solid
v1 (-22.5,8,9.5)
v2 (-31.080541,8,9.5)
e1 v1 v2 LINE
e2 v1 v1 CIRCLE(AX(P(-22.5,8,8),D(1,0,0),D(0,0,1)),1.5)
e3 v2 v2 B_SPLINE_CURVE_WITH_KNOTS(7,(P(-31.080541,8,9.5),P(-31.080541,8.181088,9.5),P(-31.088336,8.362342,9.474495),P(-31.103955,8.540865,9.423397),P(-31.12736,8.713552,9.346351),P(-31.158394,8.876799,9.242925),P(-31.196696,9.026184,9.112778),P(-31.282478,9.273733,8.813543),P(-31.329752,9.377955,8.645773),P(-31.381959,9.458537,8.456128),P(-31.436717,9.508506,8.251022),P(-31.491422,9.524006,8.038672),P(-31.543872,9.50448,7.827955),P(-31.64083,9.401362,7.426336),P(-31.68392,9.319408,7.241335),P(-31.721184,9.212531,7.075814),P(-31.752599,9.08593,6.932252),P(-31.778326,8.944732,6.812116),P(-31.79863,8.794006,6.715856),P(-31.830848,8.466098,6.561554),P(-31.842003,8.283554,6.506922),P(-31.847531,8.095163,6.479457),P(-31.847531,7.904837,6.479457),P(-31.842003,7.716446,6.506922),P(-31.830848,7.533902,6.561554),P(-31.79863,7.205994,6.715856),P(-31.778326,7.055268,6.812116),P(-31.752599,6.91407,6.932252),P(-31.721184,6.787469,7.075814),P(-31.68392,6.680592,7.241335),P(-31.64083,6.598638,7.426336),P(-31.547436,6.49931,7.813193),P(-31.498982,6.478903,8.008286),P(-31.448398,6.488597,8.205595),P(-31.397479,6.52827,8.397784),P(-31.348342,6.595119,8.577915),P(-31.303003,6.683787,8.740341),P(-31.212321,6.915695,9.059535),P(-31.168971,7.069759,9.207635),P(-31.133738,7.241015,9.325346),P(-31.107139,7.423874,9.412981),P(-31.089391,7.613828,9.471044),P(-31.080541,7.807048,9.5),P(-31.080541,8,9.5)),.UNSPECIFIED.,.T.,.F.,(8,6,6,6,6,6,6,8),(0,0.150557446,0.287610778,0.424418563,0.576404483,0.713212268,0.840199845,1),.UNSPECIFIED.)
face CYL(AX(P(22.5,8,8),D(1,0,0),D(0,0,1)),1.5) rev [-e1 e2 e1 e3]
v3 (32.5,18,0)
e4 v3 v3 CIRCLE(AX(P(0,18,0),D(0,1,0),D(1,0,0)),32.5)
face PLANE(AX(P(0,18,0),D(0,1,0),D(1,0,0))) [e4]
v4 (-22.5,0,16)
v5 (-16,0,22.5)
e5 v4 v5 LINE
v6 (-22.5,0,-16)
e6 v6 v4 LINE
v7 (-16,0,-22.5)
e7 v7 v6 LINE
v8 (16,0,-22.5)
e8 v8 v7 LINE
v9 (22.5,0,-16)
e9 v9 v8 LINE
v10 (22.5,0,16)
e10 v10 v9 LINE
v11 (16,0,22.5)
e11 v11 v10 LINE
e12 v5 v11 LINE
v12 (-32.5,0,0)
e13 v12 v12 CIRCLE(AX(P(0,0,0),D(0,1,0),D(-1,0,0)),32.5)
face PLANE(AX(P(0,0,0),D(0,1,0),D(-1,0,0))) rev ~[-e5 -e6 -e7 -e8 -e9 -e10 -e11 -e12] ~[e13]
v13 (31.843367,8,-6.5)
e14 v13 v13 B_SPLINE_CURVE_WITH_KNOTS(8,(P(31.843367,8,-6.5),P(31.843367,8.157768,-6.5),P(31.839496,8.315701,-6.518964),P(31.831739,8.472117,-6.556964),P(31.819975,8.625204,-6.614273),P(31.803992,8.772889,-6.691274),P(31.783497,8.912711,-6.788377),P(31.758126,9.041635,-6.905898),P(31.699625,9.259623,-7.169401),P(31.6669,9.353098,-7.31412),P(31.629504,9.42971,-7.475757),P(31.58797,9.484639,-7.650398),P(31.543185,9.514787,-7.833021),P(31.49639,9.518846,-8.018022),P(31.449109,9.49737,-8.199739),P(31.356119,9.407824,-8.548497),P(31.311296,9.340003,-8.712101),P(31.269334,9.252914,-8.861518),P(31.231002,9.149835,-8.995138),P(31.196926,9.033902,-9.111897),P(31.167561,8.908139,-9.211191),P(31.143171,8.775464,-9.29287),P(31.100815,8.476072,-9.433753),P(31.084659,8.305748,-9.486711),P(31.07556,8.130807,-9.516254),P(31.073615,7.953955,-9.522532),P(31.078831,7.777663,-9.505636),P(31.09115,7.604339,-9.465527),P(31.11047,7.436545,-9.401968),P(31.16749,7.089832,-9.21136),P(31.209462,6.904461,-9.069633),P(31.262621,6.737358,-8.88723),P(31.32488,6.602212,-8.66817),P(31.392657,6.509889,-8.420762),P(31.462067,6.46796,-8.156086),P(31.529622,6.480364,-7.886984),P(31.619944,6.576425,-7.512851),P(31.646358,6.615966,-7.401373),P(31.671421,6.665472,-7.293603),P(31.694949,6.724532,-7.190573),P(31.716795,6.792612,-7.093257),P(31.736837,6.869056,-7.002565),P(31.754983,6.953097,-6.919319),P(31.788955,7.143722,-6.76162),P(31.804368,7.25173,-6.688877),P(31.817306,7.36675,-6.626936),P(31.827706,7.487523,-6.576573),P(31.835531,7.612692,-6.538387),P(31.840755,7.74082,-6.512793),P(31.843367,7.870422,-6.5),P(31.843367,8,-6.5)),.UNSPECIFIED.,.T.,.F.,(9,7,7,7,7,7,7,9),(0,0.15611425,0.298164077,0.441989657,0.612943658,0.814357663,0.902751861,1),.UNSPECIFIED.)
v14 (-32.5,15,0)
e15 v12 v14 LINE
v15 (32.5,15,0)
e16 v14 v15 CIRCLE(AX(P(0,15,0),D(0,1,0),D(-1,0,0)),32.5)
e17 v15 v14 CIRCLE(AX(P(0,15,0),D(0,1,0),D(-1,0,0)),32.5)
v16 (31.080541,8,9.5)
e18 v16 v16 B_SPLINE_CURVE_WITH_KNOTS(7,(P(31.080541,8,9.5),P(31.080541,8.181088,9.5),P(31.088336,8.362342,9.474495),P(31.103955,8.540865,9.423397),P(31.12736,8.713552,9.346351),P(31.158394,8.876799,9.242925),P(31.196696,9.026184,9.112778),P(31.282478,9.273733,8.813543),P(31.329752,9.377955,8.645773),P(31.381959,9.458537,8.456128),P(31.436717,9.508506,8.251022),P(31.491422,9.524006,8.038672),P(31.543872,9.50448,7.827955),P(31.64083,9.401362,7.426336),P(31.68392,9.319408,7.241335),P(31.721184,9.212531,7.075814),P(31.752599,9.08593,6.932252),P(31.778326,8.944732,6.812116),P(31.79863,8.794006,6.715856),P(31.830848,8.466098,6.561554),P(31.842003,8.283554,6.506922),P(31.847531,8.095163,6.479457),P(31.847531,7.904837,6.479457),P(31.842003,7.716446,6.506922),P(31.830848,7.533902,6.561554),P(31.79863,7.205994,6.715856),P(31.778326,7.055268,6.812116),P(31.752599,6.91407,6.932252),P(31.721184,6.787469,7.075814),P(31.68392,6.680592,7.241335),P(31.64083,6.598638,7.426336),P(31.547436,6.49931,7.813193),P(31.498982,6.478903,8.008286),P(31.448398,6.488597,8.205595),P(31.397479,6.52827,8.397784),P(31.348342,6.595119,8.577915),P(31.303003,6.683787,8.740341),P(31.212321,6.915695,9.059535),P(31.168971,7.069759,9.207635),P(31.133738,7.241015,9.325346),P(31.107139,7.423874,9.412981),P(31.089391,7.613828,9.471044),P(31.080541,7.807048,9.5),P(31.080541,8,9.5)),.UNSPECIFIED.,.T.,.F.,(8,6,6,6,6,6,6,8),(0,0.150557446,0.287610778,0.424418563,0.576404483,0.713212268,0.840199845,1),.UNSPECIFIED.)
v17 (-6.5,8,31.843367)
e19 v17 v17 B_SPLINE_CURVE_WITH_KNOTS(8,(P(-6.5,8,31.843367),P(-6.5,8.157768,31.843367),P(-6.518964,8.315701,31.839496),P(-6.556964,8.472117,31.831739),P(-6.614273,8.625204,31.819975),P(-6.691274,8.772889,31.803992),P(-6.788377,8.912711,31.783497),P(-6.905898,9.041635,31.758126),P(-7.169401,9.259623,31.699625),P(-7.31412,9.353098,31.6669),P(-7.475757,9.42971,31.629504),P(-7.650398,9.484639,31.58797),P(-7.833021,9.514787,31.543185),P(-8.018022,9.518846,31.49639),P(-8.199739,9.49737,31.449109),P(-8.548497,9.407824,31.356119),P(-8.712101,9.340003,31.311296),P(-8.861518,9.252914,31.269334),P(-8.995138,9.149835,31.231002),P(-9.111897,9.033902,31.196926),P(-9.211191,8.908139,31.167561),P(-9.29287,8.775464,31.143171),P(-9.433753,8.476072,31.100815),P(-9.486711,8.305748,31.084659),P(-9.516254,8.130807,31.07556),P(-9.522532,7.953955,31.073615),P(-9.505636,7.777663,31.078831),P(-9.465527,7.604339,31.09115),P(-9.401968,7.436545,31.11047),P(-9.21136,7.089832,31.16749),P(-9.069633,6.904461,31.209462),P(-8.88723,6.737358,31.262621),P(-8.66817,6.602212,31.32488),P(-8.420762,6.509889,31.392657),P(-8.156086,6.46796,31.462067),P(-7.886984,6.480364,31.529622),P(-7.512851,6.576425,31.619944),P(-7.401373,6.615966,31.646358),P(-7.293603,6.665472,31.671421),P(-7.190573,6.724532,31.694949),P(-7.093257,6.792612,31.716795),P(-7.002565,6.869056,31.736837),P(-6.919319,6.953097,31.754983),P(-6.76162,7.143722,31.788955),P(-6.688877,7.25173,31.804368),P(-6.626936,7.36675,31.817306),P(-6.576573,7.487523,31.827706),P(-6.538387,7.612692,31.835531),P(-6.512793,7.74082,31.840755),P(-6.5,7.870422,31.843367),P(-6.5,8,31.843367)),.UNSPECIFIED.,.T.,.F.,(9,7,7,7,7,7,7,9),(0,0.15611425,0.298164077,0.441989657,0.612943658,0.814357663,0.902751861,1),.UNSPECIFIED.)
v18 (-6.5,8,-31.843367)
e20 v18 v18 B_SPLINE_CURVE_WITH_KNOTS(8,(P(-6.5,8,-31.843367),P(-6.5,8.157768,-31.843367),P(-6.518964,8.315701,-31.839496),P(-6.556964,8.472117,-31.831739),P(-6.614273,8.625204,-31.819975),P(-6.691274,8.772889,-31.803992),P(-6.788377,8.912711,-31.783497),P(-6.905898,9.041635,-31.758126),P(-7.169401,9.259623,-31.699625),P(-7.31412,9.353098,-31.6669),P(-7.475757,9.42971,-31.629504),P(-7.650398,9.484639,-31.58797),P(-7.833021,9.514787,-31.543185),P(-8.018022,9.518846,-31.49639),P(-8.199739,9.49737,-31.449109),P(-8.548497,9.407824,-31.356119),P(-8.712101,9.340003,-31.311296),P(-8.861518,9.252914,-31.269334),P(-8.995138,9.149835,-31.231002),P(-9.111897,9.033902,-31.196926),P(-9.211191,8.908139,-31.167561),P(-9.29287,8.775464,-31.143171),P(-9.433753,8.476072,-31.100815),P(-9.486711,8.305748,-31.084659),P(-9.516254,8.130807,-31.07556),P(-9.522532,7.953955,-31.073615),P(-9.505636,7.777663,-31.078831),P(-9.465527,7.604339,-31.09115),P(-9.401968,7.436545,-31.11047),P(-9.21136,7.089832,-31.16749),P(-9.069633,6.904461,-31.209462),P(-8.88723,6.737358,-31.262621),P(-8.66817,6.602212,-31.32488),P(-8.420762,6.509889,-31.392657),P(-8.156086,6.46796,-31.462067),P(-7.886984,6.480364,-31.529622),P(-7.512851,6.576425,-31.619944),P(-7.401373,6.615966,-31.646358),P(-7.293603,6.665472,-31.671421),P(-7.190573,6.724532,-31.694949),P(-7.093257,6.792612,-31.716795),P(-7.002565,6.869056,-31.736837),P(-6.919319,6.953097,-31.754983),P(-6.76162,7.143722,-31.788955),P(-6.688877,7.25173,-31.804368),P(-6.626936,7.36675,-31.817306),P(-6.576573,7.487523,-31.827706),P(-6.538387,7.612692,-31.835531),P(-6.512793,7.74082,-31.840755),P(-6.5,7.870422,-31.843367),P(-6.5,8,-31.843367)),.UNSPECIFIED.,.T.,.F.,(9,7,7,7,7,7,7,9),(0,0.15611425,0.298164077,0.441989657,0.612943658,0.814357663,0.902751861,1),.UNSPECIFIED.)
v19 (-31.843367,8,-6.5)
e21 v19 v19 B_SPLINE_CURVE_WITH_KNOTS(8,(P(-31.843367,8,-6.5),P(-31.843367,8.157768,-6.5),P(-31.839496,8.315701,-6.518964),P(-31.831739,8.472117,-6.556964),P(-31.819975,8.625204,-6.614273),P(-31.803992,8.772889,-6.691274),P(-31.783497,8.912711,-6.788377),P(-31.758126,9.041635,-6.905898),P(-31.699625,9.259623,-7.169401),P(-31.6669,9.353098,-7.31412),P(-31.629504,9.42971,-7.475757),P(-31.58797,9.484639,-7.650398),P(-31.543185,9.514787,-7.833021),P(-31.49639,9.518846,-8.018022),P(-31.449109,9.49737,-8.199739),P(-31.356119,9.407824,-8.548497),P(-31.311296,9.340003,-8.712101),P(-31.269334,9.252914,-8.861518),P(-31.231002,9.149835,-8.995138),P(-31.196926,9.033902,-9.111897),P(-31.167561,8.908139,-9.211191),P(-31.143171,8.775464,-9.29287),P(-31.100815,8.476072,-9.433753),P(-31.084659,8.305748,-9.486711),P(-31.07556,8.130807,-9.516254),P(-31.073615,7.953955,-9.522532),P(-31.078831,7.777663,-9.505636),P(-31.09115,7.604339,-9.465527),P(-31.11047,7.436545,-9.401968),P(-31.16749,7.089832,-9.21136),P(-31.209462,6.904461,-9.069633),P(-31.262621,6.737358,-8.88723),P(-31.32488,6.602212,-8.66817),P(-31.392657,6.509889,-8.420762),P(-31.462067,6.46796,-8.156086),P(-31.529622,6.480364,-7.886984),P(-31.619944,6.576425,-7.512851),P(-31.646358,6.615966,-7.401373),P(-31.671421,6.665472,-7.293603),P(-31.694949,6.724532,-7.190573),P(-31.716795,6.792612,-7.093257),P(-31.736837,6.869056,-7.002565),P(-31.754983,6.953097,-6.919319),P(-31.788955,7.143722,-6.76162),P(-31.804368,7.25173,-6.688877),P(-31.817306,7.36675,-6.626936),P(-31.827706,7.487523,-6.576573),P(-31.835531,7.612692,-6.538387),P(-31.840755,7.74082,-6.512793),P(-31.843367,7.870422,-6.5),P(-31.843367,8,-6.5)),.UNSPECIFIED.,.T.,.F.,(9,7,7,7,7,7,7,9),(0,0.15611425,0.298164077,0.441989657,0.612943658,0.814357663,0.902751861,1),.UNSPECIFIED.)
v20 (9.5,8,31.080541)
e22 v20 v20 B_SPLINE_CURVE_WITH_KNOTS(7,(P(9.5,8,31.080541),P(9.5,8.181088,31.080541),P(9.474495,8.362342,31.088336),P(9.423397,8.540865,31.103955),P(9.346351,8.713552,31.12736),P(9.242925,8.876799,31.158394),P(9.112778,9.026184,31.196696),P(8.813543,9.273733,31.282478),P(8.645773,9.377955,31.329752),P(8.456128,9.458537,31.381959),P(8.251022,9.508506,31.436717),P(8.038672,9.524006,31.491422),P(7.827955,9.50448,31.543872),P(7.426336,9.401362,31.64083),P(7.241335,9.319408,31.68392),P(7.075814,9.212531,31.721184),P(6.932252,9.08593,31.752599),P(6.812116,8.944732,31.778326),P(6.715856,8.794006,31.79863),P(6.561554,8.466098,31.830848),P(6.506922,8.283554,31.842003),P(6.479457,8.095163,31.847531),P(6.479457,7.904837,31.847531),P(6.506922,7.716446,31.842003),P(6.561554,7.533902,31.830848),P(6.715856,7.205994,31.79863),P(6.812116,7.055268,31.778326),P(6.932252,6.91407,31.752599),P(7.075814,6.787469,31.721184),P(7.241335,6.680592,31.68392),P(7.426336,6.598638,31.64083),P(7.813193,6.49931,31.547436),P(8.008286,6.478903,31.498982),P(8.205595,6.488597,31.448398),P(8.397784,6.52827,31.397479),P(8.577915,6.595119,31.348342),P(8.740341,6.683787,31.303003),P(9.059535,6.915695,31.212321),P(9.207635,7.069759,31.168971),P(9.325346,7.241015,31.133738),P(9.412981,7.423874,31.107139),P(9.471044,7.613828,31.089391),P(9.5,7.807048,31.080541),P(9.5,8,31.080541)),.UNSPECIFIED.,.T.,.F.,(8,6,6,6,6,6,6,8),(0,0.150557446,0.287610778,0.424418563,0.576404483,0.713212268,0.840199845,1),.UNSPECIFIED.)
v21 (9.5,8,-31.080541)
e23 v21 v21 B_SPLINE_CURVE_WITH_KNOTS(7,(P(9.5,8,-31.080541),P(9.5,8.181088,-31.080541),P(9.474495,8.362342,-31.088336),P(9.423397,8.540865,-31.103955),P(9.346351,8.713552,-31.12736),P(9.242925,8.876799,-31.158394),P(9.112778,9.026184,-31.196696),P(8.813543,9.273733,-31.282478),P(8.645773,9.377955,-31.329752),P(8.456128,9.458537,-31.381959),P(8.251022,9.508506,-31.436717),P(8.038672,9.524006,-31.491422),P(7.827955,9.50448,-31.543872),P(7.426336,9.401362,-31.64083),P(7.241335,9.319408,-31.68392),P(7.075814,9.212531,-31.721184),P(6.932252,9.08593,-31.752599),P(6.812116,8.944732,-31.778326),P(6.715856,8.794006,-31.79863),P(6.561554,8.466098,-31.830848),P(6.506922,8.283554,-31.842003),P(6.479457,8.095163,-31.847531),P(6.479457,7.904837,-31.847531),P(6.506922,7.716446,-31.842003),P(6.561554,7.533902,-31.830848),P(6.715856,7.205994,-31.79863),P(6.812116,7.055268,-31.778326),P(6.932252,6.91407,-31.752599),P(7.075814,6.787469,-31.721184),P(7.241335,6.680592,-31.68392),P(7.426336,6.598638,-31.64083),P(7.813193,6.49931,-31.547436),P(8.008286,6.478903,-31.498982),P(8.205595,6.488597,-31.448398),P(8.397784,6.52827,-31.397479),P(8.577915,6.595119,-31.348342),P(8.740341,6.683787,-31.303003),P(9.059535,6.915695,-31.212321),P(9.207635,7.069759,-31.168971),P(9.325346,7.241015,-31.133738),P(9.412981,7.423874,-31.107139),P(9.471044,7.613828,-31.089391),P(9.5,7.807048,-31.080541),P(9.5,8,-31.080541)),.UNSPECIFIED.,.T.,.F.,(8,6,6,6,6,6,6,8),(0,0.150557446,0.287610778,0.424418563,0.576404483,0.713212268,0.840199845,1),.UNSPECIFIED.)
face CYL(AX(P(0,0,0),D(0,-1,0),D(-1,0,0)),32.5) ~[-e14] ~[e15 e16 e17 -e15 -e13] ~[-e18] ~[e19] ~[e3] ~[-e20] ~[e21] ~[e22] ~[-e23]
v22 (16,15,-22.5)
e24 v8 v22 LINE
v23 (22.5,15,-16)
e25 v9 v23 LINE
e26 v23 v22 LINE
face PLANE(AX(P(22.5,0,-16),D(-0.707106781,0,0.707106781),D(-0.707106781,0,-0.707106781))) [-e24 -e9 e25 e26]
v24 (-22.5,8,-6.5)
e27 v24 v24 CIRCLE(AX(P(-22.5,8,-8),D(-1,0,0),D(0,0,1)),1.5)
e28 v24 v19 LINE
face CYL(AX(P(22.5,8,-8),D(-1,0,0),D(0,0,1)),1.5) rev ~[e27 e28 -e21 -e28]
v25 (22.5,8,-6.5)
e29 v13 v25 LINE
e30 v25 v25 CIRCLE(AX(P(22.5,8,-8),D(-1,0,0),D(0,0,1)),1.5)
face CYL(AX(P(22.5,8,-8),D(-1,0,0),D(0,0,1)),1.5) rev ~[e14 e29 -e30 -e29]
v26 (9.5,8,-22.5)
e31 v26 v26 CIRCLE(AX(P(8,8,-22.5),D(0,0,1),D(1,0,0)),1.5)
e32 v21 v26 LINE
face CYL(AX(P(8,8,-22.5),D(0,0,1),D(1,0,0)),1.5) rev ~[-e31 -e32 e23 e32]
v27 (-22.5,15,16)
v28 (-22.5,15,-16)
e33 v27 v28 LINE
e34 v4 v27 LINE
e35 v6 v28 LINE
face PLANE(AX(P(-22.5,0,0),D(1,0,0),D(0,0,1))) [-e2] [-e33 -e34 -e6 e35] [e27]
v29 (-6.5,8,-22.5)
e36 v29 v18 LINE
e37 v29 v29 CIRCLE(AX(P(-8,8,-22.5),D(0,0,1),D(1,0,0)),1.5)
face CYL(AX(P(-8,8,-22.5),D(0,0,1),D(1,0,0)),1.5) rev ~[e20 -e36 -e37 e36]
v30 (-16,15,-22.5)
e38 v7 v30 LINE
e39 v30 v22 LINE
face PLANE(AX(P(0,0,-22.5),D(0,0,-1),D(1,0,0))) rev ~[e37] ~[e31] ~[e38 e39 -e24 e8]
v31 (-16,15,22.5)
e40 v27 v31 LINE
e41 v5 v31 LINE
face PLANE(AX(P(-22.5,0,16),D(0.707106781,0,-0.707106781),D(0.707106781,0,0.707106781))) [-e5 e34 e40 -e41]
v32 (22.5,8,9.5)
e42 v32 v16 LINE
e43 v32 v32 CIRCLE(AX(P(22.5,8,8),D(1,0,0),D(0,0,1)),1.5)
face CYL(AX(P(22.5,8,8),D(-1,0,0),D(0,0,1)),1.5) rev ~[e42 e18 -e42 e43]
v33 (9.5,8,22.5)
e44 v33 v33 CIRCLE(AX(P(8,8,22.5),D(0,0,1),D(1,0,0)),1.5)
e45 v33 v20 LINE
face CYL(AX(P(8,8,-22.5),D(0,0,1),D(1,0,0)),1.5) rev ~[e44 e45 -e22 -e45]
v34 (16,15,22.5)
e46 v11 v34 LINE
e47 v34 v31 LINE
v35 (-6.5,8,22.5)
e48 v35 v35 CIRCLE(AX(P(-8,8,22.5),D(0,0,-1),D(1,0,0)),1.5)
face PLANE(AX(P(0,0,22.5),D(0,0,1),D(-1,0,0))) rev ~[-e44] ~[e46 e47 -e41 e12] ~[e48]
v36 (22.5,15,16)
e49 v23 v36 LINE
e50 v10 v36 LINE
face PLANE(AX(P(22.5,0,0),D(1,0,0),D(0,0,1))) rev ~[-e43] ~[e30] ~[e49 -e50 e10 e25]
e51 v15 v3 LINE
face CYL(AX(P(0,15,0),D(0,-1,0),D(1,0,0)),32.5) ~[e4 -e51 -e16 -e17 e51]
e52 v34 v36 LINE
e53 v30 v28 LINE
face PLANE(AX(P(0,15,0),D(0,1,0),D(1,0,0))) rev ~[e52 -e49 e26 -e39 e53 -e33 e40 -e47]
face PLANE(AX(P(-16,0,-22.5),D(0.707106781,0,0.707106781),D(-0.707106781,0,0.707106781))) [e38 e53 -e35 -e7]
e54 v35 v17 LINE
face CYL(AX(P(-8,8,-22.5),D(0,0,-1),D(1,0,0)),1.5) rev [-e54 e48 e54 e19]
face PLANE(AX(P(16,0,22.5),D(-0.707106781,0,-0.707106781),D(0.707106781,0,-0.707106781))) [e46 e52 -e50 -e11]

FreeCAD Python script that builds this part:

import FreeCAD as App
import Part
import Sketcher

V = App.Vector

doc = App.newDocument("Part")
params = doc.addObject("Spreadsheet::Sheet", "Params")
for row, (alias, value) in enumerate([
    ("sketch1_diameter", "65 mm"),
    ("sketch1_width", "32 mm"),
    ("pad1_length", "15 mm"),
    ("sketch2_diameter", "3 mm"),
    ("pocket1_length", "10200 mm"),
    ("sketch3_diameter", "3 mm"),
    ("pocket2_length", "10200 mm"),
    ("sketch4_diameter", "65 mm"),
    ("pad2_length", "3 mm"),
], start=1):
    params.set(f"A{row}", alias)
    params.set(f"B{row}", "=" + value)
    params.setAlias(f"B{row}", alias)

body = doc.addObject("PartDesign::Body", "Body")

sketch1 = body.newObject("Sketcher::SketchObject", "Sketch")
sketch1.AttachmentSupport = (doc.getObject("XZ_Plane"), [""])
sketch1.MapMode = "FlatFace"
sketch1.addGeometry(Part.Circle(V(0, 0, 0), V(0, 0, 1), 32), False)
sketch1.addGeometry(Part.LineSegment(V(-22, 16, 0), V(-22, -16, 0)), False)
sketch1.addGeometry(Part.LineSegment(V(-22, -16, 0), V(-16, -22, 0)), False)
sketch1.addGeometry(Part.LineSegment(V(-16, -22, 0), V(16, -22, 0)), False)
sketch1.addGeometry(Part.LineSegment(V(16, -22, 0), V(22, -16, 0)), False)
sketch1.addGeometry(Part.LineSegment(V(22, -16, 0), V(22, 16, 0)), False)
sketch1.addGeometry(Part.LineSegment(V(22, 16, 0), V(16, 22, 0)), False)
sketch1.addGeometry(Part.LineSegment(V(16, 22, 0), V(-16, 22, 0)), False)
sketch1.addGeometry(Part.LineSegment(V(-16, 22, 0), V(-22, 16, 0)), False)
sketch1.addConstraint(Sketcher.Constraint("Coincident", 1, 2, 2, 1))
sketch1.addConstraint(Sketcher.Constraint("Coincident", 2, 2, 3, 1))
sketch1.addConstraint(Sketcher.Constraint("Coincident", 3, 2, 4, 1))
sketch1.addConstraint(Sketcher.Constraint("Coincident", 4, 2, 5, 1))
sketch1.addConstraint(Sketcher.Constraint("Coincident", 5, 2, 6, 1))
sketch1.addConstraint(Sketcher.Constraint("Coincident", 6, 2, 7, 1))
sketch1.addConstraint(Sketcher.Constraint("Coincident", 7, 2, 8, 1))
sketch1.addConstraint(Sketcher.Constraint("Coincident", 8, 2, 1, 1))
sketch1.addConstraint(Sketcher.Constraint("Vertical", 1))
sketch1.addConstraint(Sketcher.Constraint("Horizontal", 3))
sketch1.addConstraint(Sketcher.Constraint("Vertical", 5))
sketch1.addConstraint(Sketcher.Constraint("Horizontal", 7))
sketch1.addConstraint(Sketcher.Constraint("Coincident", 0, 3, -1, 1))
sketch1.addConstraint(Sketcher.Constraint("Symmetric", 1, 2, 5, 2, -1, 1))
sketch1.addConstraint(Sketcher.Constraint("Symmetric", 2, 2, 6, 2, -1, 1))
sketch1.addConstraint(Sketcher.Constraint("Perpendicular", 2, 4))
sketch1.addConstraint(Sketcher.Constraint("Perpendicular", 6, 8))
sketch1.addConstraint(Sketcher.Constraint("Horizontal", 1, 2, 4, 2))
sketch1.addConstraint(Sketcher.Constraint("Horizontal", 5, 2, 8, 2))
sketch1.addConstraint(Sketcher.Constraint("Vertical", 3, 2, 6, 2))
sketch1.addConstraint(Sketcher.Constraint("Equal", 7, 1))
sketch1.addConstraint(Sketcher.Constraint("Diameter", 0, 65.0))
sketch1.addConstraint(Sketcher.Constraint("DistanceX", 3, 1, 3, 2, 32.0))
sketch1.addConstraint(Sketcher.Constraint("DistanceX", 1, 2, -1, 1, 22.5))
sketch1.setExpression("Constraints[21]", "Params.sketch1_diameter")
sketch1.setExpression("Constraints[22]", "Params.sketch1_width")
pad1 = body.newObject("PartDesign::Pad", "Pad")
pad1.Profile = sketch1
pad1.setExpression("Length", "Params.pad1_length")
pad1.Reversed = True

sketch2 = body.newObject("Sketcher::SketchObject", "Sketch001")
sketch2.AttachmentSupport = (doc.getObject("XY_Plane"), [""])
sketch2.MapMode = "FlatFace"
sketch2.AttachmentOffset = App.Placement(V(0, 0, -22.5), App.Rotation())
sketch2.addGeometry(Part.Circle(V(8, 8, 0), V(0, 0, 1), 1.5), False)
sketch2.addGeometry(Part.Circle(V(-8, 8, 0), V(0, 0, 1), 1.5), False)
sketch2.addConstraint(Sketcher.Constraint("Equal", 0, 1))
sketch2.addConstraint(Sketcher.Constraint("Symmetric", 0, 3, 1, 3, -2))
sketch2.addConstraint(Sketcher.Constraint("Diameter", 0, 3.0))
sketch2.addConstraint(Sketcher.Constraint("DistanceX", -1, 1, 0, 3, 8.0))
sketch2.addConstraint(Sketcher.Constraint("DistanceY", -1, 1, 0, 3, 8.0))
sketch2.setExpression("Constraints[2]", "Params.sketch2_diameter")
pocket1 = body.newObject("PartDesign::Pocket", "Pocket")
pocket1.Profile = sketch2
pocket1.setExpression("Length", "Params.pocket1_length")
pocket1.Midplane = True

sketch3 = body.newObject("Sketcher::SketchObject", "Sketch002")
sketch3.AttachmentSupport = (doc.getObject("YZ_Plane"), [""])
sketch3.MapMode = "FlatFace"
sketch3.AttachmentOffset = App.Placement(V(0, 0, 22.5), App.Rotation())
sketch3.addGeometry(Part.Circle(V(8, 8, 0), V(0, 0, 1), 1.5), False)
sketch3.addGeometry(Part.Circle(V(8, -8, 0), V(0, 0, 1), 1.5), False)
sketch3.addConstraint(Sketcher.Constraint("Equal", 0, 1))
sketch3.addConstraint(Sketcher.Constraint("Symmetric", 0, 3, 1, 3, -1))
sketch3.addConstraint(Sketcher.Constraint("Diameter", 0, 3.0))
sketch3.addConstraint(Sketcher.Constraint("DistanceX", -1, 1, 0, 3, 8.0))
sketch3.addConstraint(Sketcher.Constraint("DistanceY", -1, 1, 0, 3, 8.0))
sketch3.setExpression("Constraints[2]", "Params.sketch3_diameter")
pocket2 = body.newObject("PartDesign::Pocket", "Pocket001")
pocket2.Profile = sketch3
pocket2.setExpression("Length", "Params.pocket2_length")
pocket2.Midplane = True

sketch4 = body.newObject("Sketcher::SketchObject", "Sketch003")
sketch4.AttachmentSupport = (doc.getObject("XZ_Plane"), [""])
sketch4.MapMode = "FlatFace"
sketch4.AttachmentOffset = App.Placement(V(0, 0, -15), App.Rotation())
sketch4.addGeometry(Part.Circle(V(0, 0, 0), V(0, 0, 1), 32), False)
sketch4.addConstraint(Sketcher.Constraint("Coincident", 0, 3, -1, 1))
sketch4.addConstraint(Sketcher.Constraint("Diameter", 0, 65.0))
sketch4.setExpression("Constraints[1]", "Params.sketch4_diameter")
pad2 = body.newObject("PartDesign::Pad", "Pad001")
pad2.Profile = sketch4
pad2.setExpression("Length", "Params.pad2_length")
pad2.Reversed = True

doc.recompute()
